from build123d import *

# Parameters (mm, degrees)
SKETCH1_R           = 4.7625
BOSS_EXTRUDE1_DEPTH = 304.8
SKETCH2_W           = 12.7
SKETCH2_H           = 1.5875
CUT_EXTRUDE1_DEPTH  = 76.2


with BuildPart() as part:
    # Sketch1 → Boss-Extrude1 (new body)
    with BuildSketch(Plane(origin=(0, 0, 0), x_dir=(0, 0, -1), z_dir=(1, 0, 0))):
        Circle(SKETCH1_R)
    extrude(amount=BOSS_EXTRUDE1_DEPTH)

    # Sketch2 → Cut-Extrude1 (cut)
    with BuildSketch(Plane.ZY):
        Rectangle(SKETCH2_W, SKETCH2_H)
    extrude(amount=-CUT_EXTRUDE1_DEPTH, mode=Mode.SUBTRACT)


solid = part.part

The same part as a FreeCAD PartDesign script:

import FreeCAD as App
import Part
import Sketcher

V = App.Vector
Q = App.Units.Quantity

doc = App.newDocument("Part")
body = doc.addObject("PartDesign::Body", "Body")

# Sketch on YZ plane
sketch1 = doc.addObject("Sketcher::SketchObject", "Sketch")
body.addObject(sketch1)
sketch1.AttachmentSupport = (doc.YZ_Plane, [""])
sketch1.MapMode = "FlatFace"
sketch1.addGeometry(Part.Circle(V(0, 0, 0), V(0, 0, 1), 4.8), False)
sketch1.addConstraint(Sketcher.Constraint("Coincident", 0, 3, -1, 1))
sketch1.addConstraint(Sketcher.Constraint("Diameter", 0, Q("0.375 in")))
pad1 = doc.addObject("PartDesign::Pad", "Pad")
body.addObject(pad1)
pad1.Profile = sketch1
pad1.Length = Q("12 in")

# Sketch on YZ plane
sketch2 = doc.addObject("Sketcher::SketchObject", "Sketch001")
body.addObject(sketch2)
sketch2.AttachmentSupport = (doc.YZ_Plane, [""])
sketch2.MapMode = "FlatFace"
sketch2.addGeometry(Part.LineSegment(V(0.8, -6.3, 0), V(-0.8, -6.3, 0)), False)
sketch2.addGeometry(Part.LineSegment(V(-0.8, -6.3, 0), V(-0.8, 6.3, 0)), False)
sketch2.addGeometry(Part.LineSegment(V(-0.8, 6.3, 0), V(0.8, 6.3, 0)), False)
sketch2.addGeometry(Part.LineSegment(V(0.8, 6.3, 0), V(0.8, -6.3, 0)), False)
sketch2.addConstraint(Sketcher.Constraint("Coincident", 0, 2, 1, 1))
sketch2.addConstraint(Sketcher.Constraint("Coincident", 1, 2, 2, 1))
sketch2.addConstraint(Sketcher.Constraint("Coincident", 2, 2, 3, 1))
sketch2.addConstraint(Sketcher.Constraint("Coincident", 3, 2, 0, 1))
sketch2.addConstraint(Sketcher.Constraint("Horizontal", 0))
sketch2.addConstraint(Sketcher.Constraint("Vertical", 1))
sketch2.addConstraint(Sketcher.Constraint("Horizontal", 2))
sketch2.addConstraint(Sketcher.Constraint("Vertical", 3))
sketch2.addConstraint(Sketcher.Constraint("Symmetric", 0, 2, 2, 2, -1, 1))
sketch2.addConstraint(Sketcher.Constraint("DistanceY", 1, 1, 1, 2, Q("0.5 in")))
sketch2.addConstraint(Sketcher.Constraint("DistanceX", 0, 2, 0, 1, Q("0.0625 in")))
pocket1 = doc.addObject("PartDesign::Pocket", "Pocket")
body.addObject(pocket1)
pocket1.Profile = sketch2
pocket1.Length = Q("3 in")
pocket1.Reversed = True

doc.recompute()
